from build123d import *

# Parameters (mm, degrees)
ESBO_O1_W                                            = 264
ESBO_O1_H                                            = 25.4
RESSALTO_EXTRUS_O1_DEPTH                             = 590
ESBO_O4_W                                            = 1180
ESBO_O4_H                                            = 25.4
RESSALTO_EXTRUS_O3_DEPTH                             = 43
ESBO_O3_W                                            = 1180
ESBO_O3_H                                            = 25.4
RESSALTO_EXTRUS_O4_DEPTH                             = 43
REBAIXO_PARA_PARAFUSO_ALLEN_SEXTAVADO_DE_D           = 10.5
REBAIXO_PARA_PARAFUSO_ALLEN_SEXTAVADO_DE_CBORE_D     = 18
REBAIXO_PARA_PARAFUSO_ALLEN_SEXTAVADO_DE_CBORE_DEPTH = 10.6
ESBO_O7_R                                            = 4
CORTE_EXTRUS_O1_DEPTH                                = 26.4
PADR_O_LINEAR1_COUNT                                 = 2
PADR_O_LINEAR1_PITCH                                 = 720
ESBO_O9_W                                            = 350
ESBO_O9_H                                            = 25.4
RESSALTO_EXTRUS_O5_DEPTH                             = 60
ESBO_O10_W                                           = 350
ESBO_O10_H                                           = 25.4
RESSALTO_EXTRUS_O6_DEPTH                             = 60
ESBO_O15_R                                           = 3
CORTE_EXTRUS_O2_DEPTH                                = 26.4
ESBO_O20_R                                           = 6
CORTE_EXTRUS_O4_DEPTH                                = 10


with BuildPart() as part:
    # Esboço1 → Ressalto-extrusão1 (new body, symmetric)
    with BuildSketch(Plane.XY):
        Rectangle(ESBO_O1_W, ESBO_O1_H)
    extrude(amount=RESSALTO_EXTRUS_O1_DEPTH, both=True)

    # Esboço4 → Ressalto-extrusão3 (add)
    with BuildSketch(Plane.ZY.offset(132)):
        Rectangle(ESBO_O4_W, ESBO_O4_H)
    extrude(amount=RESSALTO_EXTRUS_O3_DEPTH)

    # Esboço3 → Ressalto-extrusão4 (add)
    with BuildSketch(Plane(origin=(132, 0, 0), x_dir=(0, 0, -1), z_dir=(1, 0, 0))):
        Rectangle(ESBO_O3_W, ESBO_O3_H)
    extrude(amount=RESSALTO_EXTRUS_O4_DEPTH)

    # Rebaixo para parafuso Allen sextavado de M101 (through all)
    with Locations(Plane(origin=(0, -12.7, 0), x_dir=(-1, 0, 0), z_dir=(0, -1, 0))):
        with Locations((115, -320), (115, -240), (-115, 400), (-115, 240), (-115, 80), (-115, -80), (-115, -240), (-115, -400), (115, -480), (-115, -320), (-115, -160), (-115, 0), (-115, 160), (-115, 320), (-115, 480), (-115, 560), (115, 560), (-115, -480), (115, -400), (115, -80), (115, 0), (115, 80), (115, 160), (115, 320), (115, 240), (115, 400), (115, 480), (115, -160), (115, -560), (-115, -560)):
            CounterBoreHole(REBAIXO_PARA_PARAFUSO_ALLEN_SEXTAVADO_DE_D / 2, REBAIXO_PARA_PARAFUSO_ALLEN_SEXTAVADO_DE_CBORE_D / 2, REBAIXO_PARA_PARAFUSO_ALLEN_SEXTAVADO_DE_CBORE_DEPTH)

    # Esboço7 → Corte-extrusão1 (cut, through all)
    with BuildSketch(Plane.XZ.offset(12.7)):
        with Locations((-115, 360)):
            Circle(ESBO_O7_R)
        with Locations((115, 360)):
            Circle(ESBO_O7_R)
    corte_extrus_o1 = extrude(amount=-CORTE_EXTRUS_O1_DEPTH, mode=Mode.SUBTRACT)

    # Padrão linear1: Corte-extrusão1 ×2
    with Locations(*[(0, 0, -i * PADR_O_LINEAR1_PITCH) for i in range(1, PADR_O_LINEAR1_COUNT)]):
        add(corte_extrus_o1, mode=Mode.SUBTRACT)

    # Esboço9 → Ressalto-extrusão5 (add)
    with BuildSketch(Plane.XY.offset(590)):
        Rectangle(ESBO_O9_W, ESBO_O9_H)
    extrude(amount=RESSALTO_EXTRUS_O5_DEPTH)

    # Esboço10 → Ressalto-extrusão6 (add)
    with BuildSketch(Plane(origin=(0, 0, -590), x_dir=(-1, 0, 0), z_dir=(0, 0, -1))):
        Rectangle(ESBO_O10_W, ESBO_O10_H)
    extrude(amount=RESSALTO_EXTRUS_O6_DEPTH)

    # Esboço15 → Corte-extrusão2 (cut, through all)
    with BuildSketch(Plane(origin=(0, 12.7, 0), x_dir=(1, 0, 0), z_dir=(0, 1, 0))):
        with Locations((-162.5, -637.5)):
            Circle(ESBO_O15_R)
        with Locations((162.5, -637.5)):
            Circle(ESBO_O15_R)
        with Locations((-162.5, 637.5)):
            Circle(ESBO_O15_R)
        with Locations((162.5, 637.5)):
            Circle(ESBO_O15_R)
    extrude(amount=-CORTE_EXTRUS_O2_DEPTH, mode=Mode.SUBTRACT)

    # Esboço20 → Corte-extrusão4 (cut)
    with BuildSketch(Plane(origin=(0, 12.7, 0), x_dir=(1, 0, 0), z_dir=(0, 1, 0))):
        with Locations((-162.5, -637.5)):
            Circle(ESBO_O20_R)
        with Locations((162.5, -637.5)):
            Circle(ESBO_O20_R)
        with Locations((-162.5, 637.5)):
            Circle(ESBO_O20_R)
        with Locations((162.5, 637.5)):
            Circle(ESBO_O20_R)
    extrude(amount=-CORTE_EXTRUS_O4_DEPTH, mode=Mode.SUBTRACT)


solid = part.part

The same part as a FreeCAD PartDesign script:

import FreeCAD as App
import Part
import Sketcher

V = App.Vector
Q = App.Units.Quantity

doc = App.newDocument("Part")
body = doc.addObject("PartDesign::Body", "Body")

sketch1 = body.newObject("Sketcher::SketchObject", "Sketch")
sketch1.AttachmentSupport = (doc.getObject("XY_Plane"), [""])
sketch1.MapMode = "FlatFace"
sketch1.addGeometry(Part.LineSegment(V(-132, 12.7, 0), V(-132, -12.7, 0)), False)
sketch1.addGeometry(Part.LineSegment(V(-132, -12.7, 0), V(132, -12.7, 0)), False)
sketch1.addGeometry(Part.LineSegment(V(132, -12.7, 0), V(132, 12.7, 0)), False)
sketch1.addGeometry(Part.LineSegment(V(132, 12.7, 0), V(-132, 12.7, 0)), False)
sketch1.addConstraint(Sketcher.Constraint("Coincident", 0, 2, 1, 1))
sketch1.addConstraint(Sketcher.Constraint("Coincident", 1, 2, 2, 1))
sketch1.addConstraint(Sketcher.Constraint("Coincident", 2, 2, 3, 1))
sketch1.addConstraint(Sketcher.Constraint("Coincident", 3, 2, 0, 1))
sketch1.addConstraint(Sketcher.Constraint("Vertical", 0))
sketch1.addConstraint(Sketcher.Constraint("Horizontal", 1))
sketch1.addConstraint(Sketcher.Constraint("Vertical", 2))
sketch1.addConstraint(Sketcher.Constraint("Horizontal", 3))
sketch1.addConstraint(Sketcher.Constraint("Symmetric", 0, 2, 2, 2, -1, 1))
sketch1.addConstraint(Sketcher.Constraint("DistanceX", 1, 1, 1, 2, Q("264 mm")))
sketch1.addConstraint(Sketcher.Constraint("DistanceY", 0, 2, 0, 1, Q("25.4 mm")))
pad1 = body.newObject("PartDesign::Pad", "Pad")
pad1.Profile = sketch1
pad1.Length = 1180
pad1.Midplane = True

sketch2 = body.newObject("Sketcher::SketchObject", "Sketch001")
sketch2.AttachmentSupport = (doc.getObject("YZ_Plane"), [""])
sketch2.MapMode = "FlatFace"
sketch2.AttachmentOffset = App.Placement(V(0, 0, -132), App.Rotation())
sketch2.addGeometry(Part.LineSegment(V(12.7, -590, 0), V(-12.7, -590, 0)), False)
sketch2.addGeometry(Part.LineSegment(V(-12.7, -590, 0), V(-12.7, 590, 0)), False)
sketch2.addGeometry(Part.LineSegment(V(-12.7, 590, 0), V(12.7, 590, 0)), False)
sketch2.addGeometry(Part.LineSegment(V(12.7, 590, 0), V(12.7, -590, 0)), False)
sketch2.addConstraint(Sketcher.Constraint("Coincident", 0, 2, 1, 1))
sketch2.addConstraint(Sketcher.Constraint("Coincident", 1, 2, 2, 1))
sketch2.addConstraint(Sketcher.Constraint("Coincident", 2, 2, 3, 1))
sketch2.addConstraint(Sketcher.Constraint("Coincident", 3, 2, 0, 1))
sketch2.addConstraint(Sketcher.Constraint("Horizontal", 0))
sketch2.addConstraint(Sketcher.Constraint("Vertical", 1))
sketch2.addConstraint(Sketcher.Constraint("Horizontal", 2))
sketch2.addConstraint(Sketcher.Constraint("Vertical", 3))
sketch2.addConstraint(Sketcher.Constraint("Symmetric", 0, 2, 2, 2, -1, 1))
sketch2.addConstraint(Sketcher.Constraint("DistanceY", 1, 1, 1, 2, Q("1180 mm")))
sketch2.addConstraint(Sketcher.Constraint("DistanceX", 0, 2, 0, 1, Q("25.4 mm")))
pad2 = body.newObject("PartDesign::Pad", "Pad001")
pad2.Profile = sketch2
pad2.Length = 43
pad2.Reversed = True

sketch3 = body.newObject("Sketcher::SketchObject", "Sketch002")
sketch3.AttachmentSupport = (doc.getObject("YZ_Plane"), [""])
sketch3.MapMode = "FlatFace"
sketch3.AttachmentOffset = App.Placement(V(0, 0, 132), App.Rotation())
sketch3.addGeometry(Part.LineSegment(V(12.7, 590, 0), V(-12.7, 590, 0)), False)
sketch3.addGeometry(Part.LineSegment(V(-12.7, 590, 0), V(-12.7, -590, 0)), False)
sketch3.addGeometry(Part.LineSegment(V(-12.7, -590, 0), V(12.7, -590, 0)), False)
sketch3.addGeometry(Part.LineSegment(V(12.7, -590, 0), V(12.7, 590, 0)), False)
sketch3.addConstraint(Sketcher.Constraint("Coincident", 0, 2, 1, 1))
sketch3.addConstraint(Sketcher.Constraint("Coincident", 1, 2, 2, 1))
sketch3.addConstraint(Sketcher.Constraint("Coincident", 2, 2, 3, 1))
sketch3.addConstraint(Sketcher.Constraint("Coincident", 3, 2, 0, 1))
sketch3.addConstraint(Sketcher.Constraint("Horizontal", 0))
sketch3.addConstraint(Sketcher.Constraint("Vertical", 1))
sketch3.addConstraint(Sketcher.Constraint("Horizontal", 2))
sketch3.addConstraint(Sketcher.Constraint("Vertical", 3))
sketch3.addConstraint(Sketcher.Constraint("Symmetric", 0, 2, 2, 2, -1, 1))
sketch3.addConstraint(Sketcher.Constraint("DistanceY", 1, 2, 1, 1, Q("1180 mm")))
sketch3.addConstraint(Sketcher.Constraint("DistanceX", 0, 2, 0, 1, Q("25.4 mm")))
pad3 = body.newObject("PartDesign::Pad", "Pad002")
pad3.Profile = sketch3
pad3.Length = 43

sketch4 = body.newObject("Sketcher::SketchObject", "Sketch003")
sketch4.AttachmentSupport = (doc.getObject("XZ_Plane"), [""])
sketch4.MapMode = "FlatFace"
sketch4.AttachmentOffset = App.Placement(V(0, 0, 12.7), App.Rotation())
sketch4.addGeometry(Part.Circle(V(-115, 320, 0), V(0, 0, 1), 5.25), False)
sketch4.addGeometry(Part.Circle(V(-115, 240, 0), V(0, 0, 1), 5.25), False)
sketch4.addGeometry(Part.Circle(V(115, -400, 0), V(0, 0, 1), 5.25), False)
sketch4.addGeometry(Part.Circle(V(115, -240, 0), V(0, 0, 1), 5.25), False)
sketch4.addGeometry(Part.Circle(V(115, -80, 0), V(0, 0, 1), 5.25), False)
sketch4.addGeometry(Part.Circle(V(115, 80, 0), V(0, 0, 1), 5.25), False)
sketch4.addGeometry(Part.Circle(V(115, 240, 0), V(0, 0, 1), 5.25), False)
sketch4.addGeometry(Part.Circle(V(115, 400, 0), V(0, 0, 1), 5.25), False)
sketch4.addGeometry(Part.Circle(V(-115, 480, 0), V(0, 0, 1), 5.25), False)
sketch4.addGeometry(Part.Circle(V(115, 320, 0), V(0, 0, 1), 5.25), False)
sketch4.addGeometry(Part.Circle(V(115, 160, 0), V(0, 0, 1), 5.25), False)
sketch4.addGeometry(Part.Circle(V(115, 0, 0), V(0, 0, 1), 5.25), False)
sketch4.addGeometry(Part.Circle(V(115, -160, 0), V(0, 0, 1), 5.25), False)
sketch4.addGeometry(Part.Circle(V(115, -320, 0), V(0, 0, 1), 5.25), False)
sketch4.addGeometry(Part.Circle(V(115, -480, 0), V(0, 0, 1), 5.25), False)
sketch4.addGeometry(Part.Circle(V(115, -560, 0), V(0, 0, 1), 5.25), False)
sketch4.addGeometry(Part.Circle(V(-115, -560, 0), V(0, 0, 1), 5.25), False)
sketch4.addGeometry(Part.Circle(V(115, 480, 0), V(0, 0, 1), 5.25), False)
sketch4.addGeometry(Part.Circle(V(-115, 400, 0), V(0, 0, 1), 5.25), False)
sketch4.addGeometry(Part.Circle(V(-115, 80, 0), V(0, 0, 1), 5.25), False)
sketch4.addGeometry(Part.Circle(V(-115, 0, 0), V(0, 0, 1), 5.25), False)
sketch4.addGeometry(Part.Circle(V(-115, -80, 0), V(0, 0, 1), 5.25), False)
sketch4.addGeometry(Part.Circle(V(-115, -160, 0), V(0, 0, 1), 5.25), False)
sketch4.addGeometry(Part.Circle(V(-115, -320, 0), V(0, 0, 1), 5.25), False)
sketch4.addGeometry(Part.Circle(V(-115, -240, 0), V(0, 0, 1), 5.25), False)
sketch4.addGeometry(Part.Circle(V(-115, -400, 0), V(0, 0, 1), 5.25), False)
sketch4.addGeometry(Part.Circle(V(-115, -480, 0), V(0, 0, 1), 5.25), False)
sketch4.addGeometry(Part.Circle(V(-115, 160, 0), V(0, 0, 1), 5.25), False)
sketch4.addGeometry(Part.Circle(V(-115, 560, 0), V(0, 0, 1), 5.25), False)
sketch4.addGeometry(Part.Circle(V(115, 560, 0), V(0, 0, 1), 5.25), False)
sketch4.addConstraint(Sketcher.Constraint("Equal", 0, 1))
sketch4.addConstraint(Sketcher.Constraint("Equal", 1, 2))
sketch4.addConstraint(Sketcher.Constraint("Equal", 2, 3))
sketch4.addConstraint(Sketcher.Constraint("Equal", 3, 4))
sketch4.addConstraint(Sketcher.Constraint("Equal", 4, 5))
sketch4.addConstraint(Sketcher.Constraint("Equal", 5, 6))
sketch4.addConstraint(Sketcher.Constraint("Equal", 6, 7))
sketch4.addConstraint(Sketcher.Constraint("Equal", 7, 8))
sketch4.addConstraint(Sketcher.Constraint("Equal", 8, 9))
sketch4.addConstraint(Sketcher.Constraint("Equal", 9, 10))
sketch4.addConstraint(Sketcher.Constraint("Equal", 10, 11))
sketch4.addConstraint(Sketcher.Constraint("Equal", 11, 12))
sketch4.addConstraint(Sketcher.Constraint("Equal", 12, 13))
sketch4.addConstraint(Sketcher.Constraint("Equal", 13, 14))
sketch4.addConstraint(Sketcher.Constraint("Equal", 14, 15))
sketch4.addConstraint(Sketcher.Constraint("Equal", 15, 16))
sketch4.addConstraint(Sketcher.Constraint("Equal", 16, 17))
sketch4.addConstraint(Sketcher.Constraint("Equal", 17, 18))
sketch4.addConstraint(Sketcher.Constraint("Equal", 18, 19))
sketch4.addConstraint(Sketcher.Constraint("Equal", 19, 20))
sketch4.addConstraint(Sketcher.Constraint("Equal", 20, 21))
sketch4.addConstraint(Sketcher.Constraint("Equal", 21, 22))
sketch4.addConstraint(Sketcher.Constraint("Equal", 22, 23))
sketch4.addConstraint(Sketcher.Constraint("Equal", 23, 24))
sketch4.addConstraint(Sketcher.Constraint("Equal", 24, 25))
sketch4.addConstraint(Sketcher.Constraint("Equal", 25, 26))
sketch4.addConstraint(Sketcher.Constraint("Equal", 26, 27))
sketch4.addConstraint(Sketcher.Constraint("Equal", 27, 28))
sketch4.addConstraint(Sketcher.Constraint("Equal", 28, 29))
sketch4.addConstraint(Sketcher.Constraint("Symmetric", 1, 3, 3, 3, -1, 1))
sketch4.addConstraint(Sketcher.Constraint("Symmetric", 0, 3, 13, 3, -1, 1))
sketch4.addConstraint(Sketcher.Constraint("Symmetric", 8, 3, 14, 3, -1, 1))
sketch4.addConstraint(Sketcher.Constraint("Symmetric", 2, 3, 18, 3, -1, 1))
sketch4.addConstraint(Sketcher.Constraint("Symmetric", 4, 3, 19, 3, -1, 1))
sketch4.addConstraint(Sketcher.Constraint("Symmetric", 11, 3, 20, 3, -1, 1))
sketch4.addConstraint(Sketcher.Constraint("Symmetric", 5, 3, 21, 3, -1, 1))
sketch4.addConstraint(Sketcher.Constraint("Symmetric", 10, 3, 22, 3, -1, 1))
sketch4.addConstraint(Sketcher.Constraint("Symmetric", 9, 3, 23, 3, -1, 1))
sketch4.addConstraint(Sketcher.Constraint("Symmetric", 6, 3, 24, 3, -1, 1))
sketch4.addConstraint(Sketcher.Constraint("Symmetric", 7, 3, 25, 3, -1, 1))
sketch4.addConstraint(Sketcher.Constraint("Symmetric", 17, 3, 26, 3, -1, 1))
sketch4.addConstraint(Sketcher.Constraint("Symmetric", 12, 3, 27, 3, -1, 1))
sketch4.addConstraint(Sketcher.Constraint("Symmetric", 15, 3, 28, 3, -1, 1))
sketch4.addConstraint(Sketcher.Constraint("Symmetric", 16, 3, 29, 3, -1, 1))
sketch4.addConstraint(Sketcher.Constraint("Symmetric", 1, 3, 6, 3, -2))
sketch4.addConstraint(Sketcher.Constraint("Symmetric", 0, 3, 9, 3, -2))
sketch4.addConstraint(Sketcher.Constraint("Symmetric", 15, 3, 16, 3, -2))
sketch4.addConstraint(Sketcher.Constraint("Symmetric", 8, 3, 17, 3, -2))
sketch4.addConstraint(Sketcher.Constraint("Symmetric", 7, 3, 18, 3, -2))
sketch4.addConstraint(Sketcher.Constraint("Symmetric", 5, 3, 19, 3, -2))
sketch4.addConstraint(Sketcher.Constraint("Symmetric", 12, 3, 22, 3, -2))
sketch4.addConstraint(Sketcher.Constraint("PointOnObject", 11, 3, -1))
sketch4.addConstraint(Sketcher.Constraint("Vertical", 0, 3, 1, 3))
sketch4.addConstraint(Sketcher.Constraint("Vertical", 2, 3, 3, 3))
sketch4.addConstraint(Sketcher.Constraint("Vertical", 3, 3, 4, 3))
sketch4.addConstraint(Sketcher.Constraint("Vertical", 1, 3, 8, 3))
sketch4.addConstraint(Sketcher.Constraint("Vertical", 9, 3, 10, 3))
sketch4.addConstraint(Sketcher.Constraint("Vertical", 10, 3, 11, 3))
sketch4.addConstraint(Sketcher.Constraint("Vertical", 14, 3, 15, 3))
sketch4.addConstraint(Sketcher.Constraint("Diameter", 0, Q("10.5 mm")))
sketch4.addConstraint(Sketcher.Constraint("DistanceX", 0, 3, -1, 1, Q("115 mm")))
sketch4.addConstraint(Sketcher.Constraint("DistanceY", -1, 1, 0, 3, Q("320 mm")))
sketch4.addConstraint(Sketcher.Constraint("DistanceY", -1, 1, 1, 3, Q("240 mm")))
sketch4.addConstraint(Sketcher.Constraint("DistanceY", 2, 3, -1, 1, Q("400 mm")))
sketch4.addConstraint(Sketcher.Constraint("DistanceY", 4, 3, -1, 1, Q("80 mm")))
sketch4.addConstraint(Sketcher.Constraint("DistanceY", -1, 1, 8, 3, Q("480 mm")))
sketch4.addConstraint(Sketcher.Constraint("DistanceY", -1, 1, 10, 3, Q("160 mm")))
sketch4.addConstraint(Sketcher.Constraint("DistanceY", 15, 3, -1, 1, Q("560 mm")))
doc.recompute()
hole = body.newObject("PartDesign::Hole", "Hole")
hole.Profile = sketch4
hole.ThreadType = "None"
hole.Diameter = 10.5
hole.DepthType = "ThroughAll"
hole.HoleCutType = "Counterbore"
hole.HoleCutDiameter = 18
hole.HoleCutDepth = 10.6

sketch5 = body.newObject("Sketcher::SketchObject", "Sketch004")
sketch5.AttachmentSupport = (doc.getObject("XZ_Plane"), [""])
sketch5.MapMode = "FlatFace"
sketch5.AttachmentOffset = App.Placement(V(0, 0, 12.7), App.Rotation())
sketch5.addGeometry(Part.Circle(V(-115, 360, 0), V(0, 0, 1), 4), False)
sketch5.addGeometry(Part.Circle(V(115, 360, 0), V(0, 0, 1), 4), False)
sketch5.addConstraint(Sketcher.Constraint("Equal", 0, 1))
sketch5.addConstraint(Sketcher.Constraint("Symmetric", 0, 3, 1, 3, -2))
sketch5.addConstraint(Sketcher.Constraint("Diameter", 0, Q("8 mm")))
sketch5.addConstraint(Sketcher.Constraint("DistanceX", 0, 3, -1, 1, Q("115 mm")))
sketch5.addConstraint(Sketcher.Constraint("DistanceY", -1, 1, 0, 3, Q("360 mm")))
pocket1 = body.newObject("PartDesign::Pocket", "Pocket")
pocket1.Profile = sketch5
pocket1.Type = "ThroughAll"
doc.recompute()

linearpattern = body.newObject("PartDesign::LinearPattern", "LinearPattern")
linearpattern.Originals = [pocket1]
linearpattern.Direction = (doc.getObject("Z_Axis"), [""])
linearpattern.Mode = "offset"
linearpattern.Offset = 720
linearpattern.Occurrences = 2
linearpattern.Reversed = True
body.Tip = linearpattern

sketch6 = body.newObject("Sketcher::SketchObject", "Sketch005")
sketch6.AttachmentSupport = (doc.getObject("XY_Plane"), [""])
sketch6.MapMode = "FlatFace"
sketch6.AttachmentOffset = App.Placement(V(0, 0, 590), App.Rotation())
sketch6.addGeometry(Part.LineSegment(V(-175, 12.7, 0), V(-175, -12.7, 0)), False)
sketch6.addGeometry(Part.LineSegment(V(-175, -12.7, 0), V(175, -12.7, 0)), False)
sketch6.addGeometry(Part.LineSegment(V(175, -12.7, 0), V(175, 12.7, 0)), False)
sketch6.addGeometry(Part.LineSegment(V(175, 12.7, 0), V(-175, 12.7, 0)), False)
sketch6.addConstraint(Sketcher.Constraint("Coincident", 0, 2, 1, 1))
sketch6.addConstraint(Sketcher.Constraint("Coincident", 1, 2, 2, 1))
sketch6.addConstraint(Sketcher.Constraint("Coincident", 2, 2, 3, 1))
sketch6.addConstraint(Sketcher.Constraint("Coincident", 3, 2, 0, 1))
sketch6.addConstraint(Sketcher.Constraint("Vertical", 0))
sketch6.addConstraint(Sketcher.Constraint("Horizontal", 1))
sketch6.addConstraint(Sketcher.Constraint("Vertical", 2))
sketch6.addConstraint(Sketcher.Constraint("Horizontal", 3))
sketch6.addConstraint(Sketcher.Constraint("Symmetric", 0, 2, 2, 2, -1, 1))
sketch6.addConstraint(Sketcher.Constraint("DistanceX", 1, 1, 1, 2, Q("350 mm")))
sketch6.addConstraint(Sketcher.Constraint("DistanceY", 0, 2, 0, 1, Q("25.4 mm")))
pad4 = body.newObject("PartDesign::Pad", "Pad003")
pad4.Profile = sketch6
pad4.Length = 60

sketch7 = body.newObject("Sketcher::SketchObject", "Sketch006")
sketch7.AttachmentSupport = (doc.getObject("XY_Plane"), [""])
sketch7.MapMode = "FlatFace"
sketch7.AttachmentOffset = App.Placement(V(0, 0, -590), App.Rotation())
sketch7.addGeometry(Part.LineSegment(V(175, 12.7, 0), V(175, -12.7, 0)), False)
sketch7.addGeometry(Part.LineSegment(V(175, -12.7, 0), V(-175, -12.7, 0)), False)
sketch7.addGeometry(Part.LineSegment(V(-175, -12.7, 0), V(-175, 12.7, 0)), False)
sketch7.addGeometry(Part.LineSegment(V(-175, 12.7, 0), V(175, 12.7, 0)), False)
sketch7.addConstraint(Sketcher.Constraint("Coincident", 0, 2, 1, 1))
sketch7.addConstraint(Sketcher.Constraint("Coincident", 1, 2, 2, 1))
sketch7.addConstraint(Sketcher.Constraint("Coincident", 2, 2, 3, 1))
sketch7.addConstraint(Sketcher.Constraint("Coincident", 3, 2, 0, 1))
sketch7.addConstraint(Sketcher.Constraint("Vertical", 0))
sketch7.addConstraint(Sketcher.Constraint("Horizontal", 1))
sketch7.addConstraint(Sketcher.Constraint("Vertical", 2))
sketch7.addConstraint(Sketcher.Constraint("Horizontal", 3))
sketch7.addConstraint(Sketcher.Constraint("Symmetric", 0, 2, 2, 2, -1, 1))
sketch7.addConstraint(Sketcher.Constraint("DistanceX", 1, 2, 1, 1, Q("350 mm")))
sketch7.addConstraint(Sketcher.Constraint("DistanceY", 0, 2, 0, 1, Q("25.4 mm")))
pad5 = body.newObject("PartDesign::Pad", "Pad004")
pad5.Profile = sketch7
pad5.Length = 60
pad5.Reversed = True

sketch8 = body.newObject("Sketcher::SketchObject", "Sketch007")
sketch8.AttachmentSupport = (doc.getObject("XZ_Plane"), [""])
sketch8.MapMode = "FlatFace"
sketch8.AttachmentOffset = App.Placement(V(0, 0, -12.7), App.Rotation())
sketch8.addGeometry(Part.Circle(V(-162.5, 637.5, 0), V(0, 0, 1), 3), False)
sketch8.addGeometry(Part.Circle(V(162.5, 637.5, 0), V(0, 0, 1), 3), False)
sketch8.addGeometry(Part.Circle(V(-162.5, -637.5, 0), V(0, 0, 1), 3), False)
sketch8.addGeometry(Part.Circle(V(162.5, -637.5, 0), V(0, 0, 1), 3), False)
sketch8.addConstraint(Sketcher.Constraint("Equal", 0, 1))
sketch8.addConstraint(Sketcher.Constraint("Equal", 1, 2))
sketch8.addConstraint(Sketcher.Constraint("Equal", 2, 3))
sketch8.addConstraint(Sketcher.Constraint("Symmetric", 1, 3, 2, 3, -1, 1))
sketch8.addConstraint(Sketcher.Constraint("Symmetric", 0, 3, 3, 3, -1, 1))
sketch8.addConstraint(Sketcher.Constraint("Symmetric", 0, 3, 1, 3, -2))
sketch8.addConstraint(Sketcher.Constraint("Diameter", 0, Q("6 mm")))
sketch8.addConstraint(Sketcher.Constraint("DistanceX", 0, 3, 1, 3, Q("325 mm")))
sketch8.addConstraint(Sketcher.Constraint("DistanceY", 2, 3, 0, 3, Q("1275 mm")))
pocket2 = body.newObject("PartDesign::Pocket", "Pocket001")
pocket2.Profile = sketch8
pocket2.Type = "ThroughAll"
pocket2.Reversed = True

sketch9 = body.newObject("Sketcher::SketchObject", "Sketch008")
sketch9.AttachmentSupport = (doc.getObject("XZ_Plane"), [""])
sketch9.MapMode = "FlatFace"
sketch9.AttachmentOffset = App.Placement(V(0, 0, -12.7), App.Rotation())
sketch9.addGeometry(Part.Circle(V(-162.5, 637.5, 0), V(0, 0, 1), 6), False)
sketch9.addGeometry(Part.Circle(V(162.5, 637.5, 0), V(0, 0, 1), 6), False)
sketch9.addGeometry(Part.Circle(V(-162.5, -637.5, 0), V(0, 0, 1), 6), False)
sketch9.addGeometry(Part.Circle(V(162.5, -637.5, 0), V(0, 0, 1), 6), False)
sketch9.addConstraint(Sketcher.Constraint("Equal", 0, 1))
sketch9.addConstraint(Sketcher.Constraint("Equal", 1, 2))
sketch9.addConstraint(Sketcher.Constraint("Equal", 2, 3))
sketch9.addConstraint(Sketcher.Constraint("Symmetric", 1, 3, 2, 3, -1, 1))
sketch9.addConstraint(Sketcher.Constraint("Symmetric", 0, 3, 3, 3, -1, 1))
sketch9.addConstraint(Sketcher.Constraint("Symmetric", 0, 3, 1, 3, -2))
sketch9.addConstraint(Sketcher.Constraint("Diameter", 0, Q("12 mm")))
sketch9.addConstraint(Sketcher.Constraint("DistanceX", 0, 3, 1, 3, Q("325 mm")))
sketch9.addConstraint(Sketcher.Constraint("DistanceY", 2, 3, 0, 3, Q("1275 mm")))
pocket3 = body.newObject("PartDesign::Pocket", "Pocket002")
pocket3.Profile = sketch9
pocket3.Length = 10
pocket3.Reversed = True

doc.recompute()
